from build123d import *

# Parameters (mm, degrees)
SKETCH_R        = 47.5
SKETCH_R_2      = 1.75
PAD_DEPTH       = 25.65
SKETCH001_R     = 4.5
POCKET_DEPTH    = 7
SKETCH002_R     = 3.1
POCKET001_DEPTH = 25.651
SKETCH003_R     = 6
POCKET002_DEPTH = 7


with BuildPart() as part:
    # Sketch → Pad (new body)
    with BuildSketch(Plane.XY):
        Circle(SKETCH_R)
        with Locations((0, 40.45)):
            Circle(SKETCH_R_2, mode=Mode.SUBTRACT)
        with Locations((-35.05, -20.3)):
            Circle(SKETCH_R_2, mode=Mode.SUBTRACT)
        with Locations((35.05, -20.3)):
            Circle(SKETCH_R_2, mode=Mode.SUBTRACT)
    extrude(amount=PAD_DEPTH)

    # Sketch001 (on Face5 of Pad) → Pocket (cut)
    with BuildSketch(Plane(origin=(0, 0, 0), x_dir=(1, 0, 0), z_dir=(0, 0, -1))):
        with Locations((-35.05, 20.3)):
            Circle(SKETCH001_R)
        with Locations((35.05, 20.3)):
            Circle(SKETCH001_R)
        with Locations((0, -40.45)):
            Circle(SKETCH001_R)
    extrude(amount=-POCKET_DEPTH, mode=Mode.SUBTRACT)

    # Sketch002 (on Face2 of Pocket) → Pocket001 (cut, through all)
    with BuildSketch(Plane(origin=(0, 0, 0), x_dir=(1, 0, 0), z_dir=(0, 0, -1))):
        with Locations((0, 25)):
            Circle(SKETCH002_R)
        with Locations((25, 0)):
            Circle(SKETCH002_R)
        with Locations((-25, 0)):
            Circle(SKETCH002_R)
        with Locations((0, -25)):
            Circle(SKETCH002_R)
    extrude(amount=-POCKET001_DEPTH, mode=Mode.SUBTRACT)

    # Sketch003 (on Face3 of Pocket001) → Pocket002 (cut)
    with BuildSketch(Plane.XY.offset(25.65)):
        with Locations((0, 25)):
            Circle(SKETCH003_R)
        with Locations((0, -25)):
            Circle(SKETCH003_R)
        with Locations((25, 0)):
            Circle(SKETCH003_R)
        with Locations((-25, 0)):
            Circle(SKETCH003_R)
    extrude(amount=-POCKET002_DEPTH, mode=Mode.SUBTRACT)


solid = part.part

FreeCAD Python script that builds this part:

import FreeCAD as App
import Part
import Sketcher

V = App.Vector

doc = App.newDocument("Part")
body = doc.addObject("PartDesign::Body", "Body")

sketch1 = body.newObject("Sketcher::SketchObject", "Sketch")
sketch1.AttachmentSupport = (doc.getObject("XY_Plane"), [""])
sketch1.MapMode = "FlatFace"
sketch1.addGeometry([
    Part.Circle(V(0, 0, 0), V(0, 0, 1), 47.5),
    Part.Circle(V(-35, -20.3, 0), V(0, 0, 1), 1.8),
    Part.Circle(V(35, -20.3, 0), V(0, 0, 1), 1.8),
    Part.Circle(V(0, 40.5, 0), V(0, 0, 1), 1.8),
], False)
sketch1.addConstraint([
    Sketcher.Constraint("Coincident", 0, 3, -1, 1),
    Sketcher.Constraint("Equal", 1, 2),
    Sketcher.Constraint("Equal", 2, 3),
    Sketcher.Constraint("Symmetric", 1, 3, 2, 3, -2),
    Sketcher.Constraint("PointOnObject", 3, 3, -2),
    Sketcher.Constraint("Diameter", 0, 95.0),
    Sketcher.Constraint("Diameter", 1, 3.5),
    Sketcher.Constraint("DistanceY", 1, 3, -1, 1, 20.3),
    Sketcher.Constraint("DistanceX", 1, 3, 2, 3, 70.1),
    Sketcher.Constraint("DistanceY", -1, 1, 3, 3, 40.45),
])
pad1 = body.newObject("PartDesign::Pad", "Pad")
pad1.Profile = sketch1
pad1.Length = 25.65

sketch2 = body.newObject("Sketcher::SketchObject", "Sketch001")
sketch2.AttachmentSupport = (doc.getObject("XY_Plane"), [""])
sketch2.MapMode = "FlatFace"
sketch2.addGeometry([
    Part.Circle(V(-35, -20.3, 0), V(0, 0, 1), 4.5),
    Part.Circle(V(35, -20.3, 0), V(0, 0, 1), 4.5),
    Part.Circle(V(0, 40.5, 0), V(0, 0, 1), 4.5),
], False)
sketch2.addConstraint([
    Sketcher.Constraint("Equal", 0, 1),
    Sketcher.Constraint("Equal", 1, 2),
    Sketcher.Constraint("Symmetric", 0, 3, 1, 3, -2),
    Sketcher.Constraint("PointOnObject", 2, 3, -2),
    Sketcher.Constraint("Diameter", 0, 9.0),
    Sketcher.Constraint("DistanceY", 0, 3, -1, 1, 20.3),
    Sketcher.Constraint("DistanceX", 0, 3, 1, 3, 70.1),
    Sketcher.Constraint("DistanceY", -1, 1, 2, 3, 40.45),
])
pocket1 = body.newObject("PartDesign::Pocket", "Pocket")
pocket1.Profile = sketch2
pocket1.Length = 7
pocket1.Reversed = True

sketch3 = body.newObject("Sketcher::SketchObject", "Sketch002")
sketch3.AttachmentSupport = (doc.getObject("XY_Plane"), [""])
sketch3.MapMode = "FlatFace"
sketch3.addGeometry([
    Part.Circle(V(0, -25, 0), V(0, 0, 1), 3.1),
    Part.Circle(V(25, 0, 0), V(0, 0, 1), 3.1),
    Part.Circle(V(-25, 0, 0), V(0, 0, 1), 3.1),
    Part.Circle(V(0, 25, 0), V(0, 0, 1), 3.1),
], False)
sketch3.addConstraint([
    Sketcher.Constraint("Equal", 0, 1),
    Sketcher.Constraint("Equal", 1, 2),
    Sketcher.Constraint("Equal", 2, 3),
    Sketcher.Constraint("Symmetric", 1, 3, 2, 3, -1, 1),
    Sketcher.Constraint("Symmetric", 0, 3, 3, 3, -1, 1),
    Sketcher.Constraint("PointOnObject", 0, 3, -2),
    Sketcher.Constraint("PointOnObject", 1, 3, -1),
    Sketcher.Constraint("Diameter", 0, 6.2),
    Sketcher.Constraint("DistanceY", 0, 3, -1, 1, 25.0),
    Sketcher.Constraint("DistanceX", -1, 1, 1, 3, 25.0),
])
pocket2 = body.newObject("PartDesign::Pocket", "Pocket001")
pocket2.Profile = sketch3
pocket2.Type = "ThroughAll"
pocket2.Reversed = True

sketch4 = body.newObject("Sketcher::SketchObject", "Sketch003")
sketch4.AttachmentSupport = (doc.getObject("XY_Plane"), [""])
sketch4.MapMode = "FlatFace"
sketch4.AttachmentOffset = App.Placement(V(0, 0, 25.65), App.Rotation())
sketch4.addGeometry([
    Part.Circle(V(0, 25, 0), V(0, 0, 1), 6),
    Part.Circle(V(0, -25, 0), V(0, 0, 1), 6),
    Part.Circle(V(25, 0, 0), V(0, 0, 1), 6),
    Part.Circle(V(-25, 0, 0), V(0, 0, 1), 6),
], False)
sketch4.addConstraint([
    Sketcher.Constraint("Equal", 0, 1),
    Sketcher.Constraint("Equal", 1, 2),
    Sketcher.Constraint("Equal", 2, 3),
    Sketcher.Constraint("Symmetric", 0, 3, 1, 3, -1, 1),
    Sketcher.Constraint("Symmetric", 2, 3, 3, 3, -1, 1),
    Sketcher.Constraint("PointOnObject", 0, 3, -2),
    Sketcher.Constraint("PointOnObject", 2, 3, -1),
    Sketcher.Constraint("Diameter", 0, 12.0),
    Sketcher.Constraint("DistanceY", -1, 1, 0, 3, 25.0),
    Sketcher.Constraint("DistanceX", -1, 1, 2, 3, 25.0),
])
pocket3 = body.newObject("PartDesign::Pocket", "Pocket002")
pocket3.Profile = sketch4
pocket3.Length = 7

doc.recompute()
